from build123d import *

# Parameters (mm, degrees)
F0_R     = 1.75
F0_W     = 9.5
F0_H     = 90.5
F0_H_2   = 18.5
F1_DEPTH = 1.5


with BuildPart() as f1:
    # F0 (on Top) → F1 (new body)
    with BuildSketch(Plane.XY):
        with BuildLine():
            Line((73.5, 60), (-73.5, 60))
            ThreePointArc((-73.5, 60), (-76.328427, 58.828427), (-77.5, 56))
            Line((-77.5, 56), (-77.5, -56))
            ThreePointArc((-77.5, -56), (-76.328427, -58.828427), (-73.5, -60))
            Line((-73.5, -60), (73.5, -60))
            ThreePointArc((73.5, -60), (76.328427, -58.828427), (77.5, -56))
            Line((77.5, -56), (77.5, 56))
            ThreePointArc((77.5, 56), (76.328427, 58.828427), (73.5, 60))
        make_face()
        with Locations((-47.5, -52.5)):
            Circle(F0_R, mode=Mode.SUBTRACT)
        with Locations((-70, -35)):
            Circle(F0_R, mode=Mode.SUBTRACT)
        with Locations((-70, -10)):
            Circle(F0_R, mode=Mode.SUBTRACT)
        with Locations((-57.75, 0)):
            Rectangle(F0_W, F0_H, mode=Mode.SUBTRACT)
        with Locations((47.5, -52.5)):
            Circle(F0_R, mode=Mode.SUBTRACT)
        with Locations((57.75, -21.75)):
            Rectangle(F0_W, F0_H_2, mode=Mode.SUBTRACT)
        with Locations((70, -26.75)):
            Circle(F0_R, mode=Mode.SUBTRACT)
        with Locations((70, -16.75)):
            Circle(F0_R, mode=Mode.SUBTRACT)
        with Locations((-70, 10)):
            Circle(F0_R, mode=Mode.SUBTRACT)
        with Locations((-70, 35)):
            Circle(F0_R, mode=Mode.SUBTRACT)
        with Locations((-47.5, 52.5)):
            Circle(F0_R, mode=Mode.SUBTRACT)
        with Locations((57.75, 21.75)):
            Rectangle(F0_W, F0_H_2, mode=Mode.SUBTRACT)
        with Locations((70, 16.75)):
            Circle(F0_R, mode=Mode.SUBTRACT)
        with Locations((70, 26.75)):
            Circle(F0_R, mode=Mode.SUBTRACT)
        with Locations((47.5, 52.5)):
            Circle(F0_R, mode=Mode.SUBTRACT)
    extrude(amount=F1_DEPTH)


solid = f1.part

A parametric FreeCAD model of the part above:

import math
import FreeCAD as App
import Part
import Sketcher

V = App.Vector
Q = App.Units.Quantity

doc = App.newDocument("Part")
body = doc.addObject("PartDesign::Body", "Body")

sketch1 = doc.addObject("Sketcher::SketchObject", "Sketch")
body.addObject(sketch1)
sketch1.AttachmentSupport = (doc.XY_Plane, [""])
sketch1.MapMode = "FlatFace"
sketch1.addGeometry([
    Part.LineSegment(V(73.5, 60, 0), V(-73.5, 60, 0)),
    Part.ArcOfCircle(Part.Circle(V(-73.5, 56, 0), V(0, 0, 1), 4), math.radians(90), math.radians(180)),
    Part.LineSegment(V(-77.5, 56, 0), V(-77.5, -56, 0)),
    Part.ArcOfCircle(Part.Circle(V(-73.5, -56, 0), V(0, 0, 1), 4), math.radians(-180), math.radians(-90)),
    Part.LineSegment(V(-73.5, -60, 0), V(73.5, -60, 0)),
    Part.ArcOfCircle(Part.Circle(V(73.5, -56, 0), V(0, 0, 1), 4), math.radians(-90), math.radians(0)),
    Part.LineSegment(V(77.5, -56, 0), V(77.5, 56, 0)),
    Part.ArcOfCircle(Part.Circle(V(73.5, 56, 0), V(0, 0, 1), 4), math.radians(0), math.radians(90)),
    Part.Circle(V(-47.5, -52.5, 0), V(0, 0, 1), 1.8),
    Part.Circle(V(-70, -35, 0), V(0, 0, 1), 1.8),
    Part.Circle(V(-70, -10, 0), V(0, 0, 1), 1.8),
    Part.Circle(V(47.5, -52.5, 0), V(0, 0, 1), 1.8),
    Part.LineSegment(V(62.5, -31, 0), V(53, -31, 0)),
    Part.LineSegment(V(53, -31, 0), V(53, -12.5, 0)),
    Part.LineSegment(V(53, -12.5, 0), V(62.5, -12.5, 0)),
    Part.LineSegment(V(62.5, -12.5, 0), V(62.5, -31, 0)),
    Part.Circle(V(70, -26.8, 0), V(0, 0, 1), 1.8),
    Part.Circle(V(70, -16.8, 0), V(0, 0, 1), 1.8),
    Part.LineSegment(V(-53, -45.2, 0), V(-62.5, -45.2, 0)),
    Part.LineSegment(V(-62.5, -45.2, 0), V(-62.5, 45.2, 0)),
    Part.LineSegment(V(-62.5, 45.2, 0), V(-53, 45.2, 0)),
    Part.LineSegment(V(-53, 45.2, 0), V(-53, -45.2, 0)),
    Part.Circle(V(-70, 10, 0), V(0, 0, 1), 1.8),
    Part.Circle(V(-70, 35, 0), V(0, 0, 1), 1.8),
    Part.Circle(V(-47.5, 52.5, 0), V(0, 0, 1), 1.8),
    Part.Circle(V(70, 16.8, 0), V(0, 0, 1), 1.8),
    Part.LineSegment(V(62.5, 12.5, 0), V(53, 12.5, 0)),
    Part.LineSegment(V(53, 12.5, 0), V(53, 31, 0)),
    Part.LineSegment(V(53, 31, 0), V(62.5, 31, 0)),
    Part.LineSegment(V(62.5, 31, 0), V(62.5, 12.5, 0)),
    Part.Circle(V(70, 26.8, 0), V(0, 0, 1), 1.8),
    Part.Circle(V(47.5, 52.5, 0), V(0, 0, 1), 1.8),
], False)
sketch1.addConstraint([
    Sketcher.Constraint("Tangent", 0, 2, 1, 1),
    Sketcher.Constraint("Tangent", 1, 2, 2, 1),
    Sketcher.Constraint("Tangent", 2, 2, 3, 1),
    Sketcher.Constraint("Tangent", 3, 2, 4, 1),
    Sketcher.Constraint("Tangent", 4, 2, 5, 1),
    Sketcher.Constraint("Tangent", 5, 2, 6, 1),
    Sketcher.Constraint("Tangent", 6, 2, 7, 1),
    Sketcher.Constraint("Tangent", 7, 2, 0, 1),
    Sketcher.Constraint("Coincident", 12, 2, 13, 1),
    Sketcher.Constraint("Coincident", 13, 2, 14, 1),
    Sketcher.Constraint("Coincident", 14, 2, 15, 1),
    Sketcher.Constraint("Coincident", 15, 2, 12, 1),
    Sketcher.Constraint("Coincident", 18, 2, 19, 1),
    Sketcher.Constraint("Coincident", 19, 2, 20, 1),
    Sketcher.Constraint("Coincident", 20, 2, 21, 1),
    Sketcher.Constraint("Coincident", 21, 2, 18, 1),
    Sketcher.Constraint("Coincident", 26, 2, 27, 1),
    Sketcher.Constraint("Coincident", 27, 2, 28, 1),
    Sketcher.Constraint("Coincident", 28, 2, 29, 1),
    Sketcher.Constraint("Coincident", 29, 2, 26, 1),
    Sketcher.Constraint("Horizontal", 0),
    Sketcher.Constraint("Vertical", 2),
    Sketcher.Constraint("Horizontal", 4),
    Sketcher.Constraint("Vertical", 6),
    Sketcher.Constraint("Horizontal", 12),
    Sketcher.Constraint("Vertical", 13),
    Sketcher.Constraint("Horizontal", 14),
    Sketcher.Constraint("Vertical", 15),
    Sketcher.Constraint("Horizontal", 18),
    Sketcher.Constraint("Vertical", 19),
    Sketcher.Constraint("Horizontal", 20),
    Sketcher.Constraint("Vertical", 21),
    Sketcher.Constraint("Horizontal", 26),
    Sketcher.Constraint("Vertical", 27),
    Sketcher.Constraint("Horizontal", 28),
    Sketcher.Constraint("Vertical", 29),
    Sketcher.Constraint("Equal", 1, 3),
    Sketcher.Constraint("Equal", 3, 5),
    Sketcher.Constraint("Equal", 5, 7),
    Sketcher.Constraint("Equal", 8, 9),
    Sketcher.Constraint("Equal", 9, 10),
    Sketcher.Constraint("Equal", 10, 11),
    Sketcher.Constraint("Equal", 11, 16),
    Sketcher.Constraint("Equal", 16, 17),
    Sketcher.Constraint("Equal", 17, 22),
    Sketcher.Constraint("Equal", 22, 23),
    Sketcher.Constraint("Equal", 23, 24),
    Sketcher.Constraint("Equal", 24, 25),
    Sketcher.Constraint("Equal", 25, 30),
    Sketcher.Constraint("Equal", 30, 31),
    Sketcher.Constraint("Symmetric", 1, 3, 5, 3, -1, 1),
    Sketcher.Constraint("Symmetric", 11, 3, 24, 3, -1, 1),
    Sketcher.Constraint("Symmetric", 8, 3, 31, 3, -1, 1),
    Sketcher.Constraint("Symmetric", 8, 3, 11, 3, -2),
    Sketcher.Constraint("Symmetric", 10, 3, 22, 3, -1),
    Sketcher.Constraint("Symmetric", 9, 3, 23, 3, -1),
    Sketcher.Constraint("Symmetric", 17, 3, 25, 3, -1),
    Sketcher.Constraint("Symmetric", 16, 3, 30, 3, -1),
    Sketcher.Constraint("Symmetric", 13, 2, 26, 2, -1),
    Sketcher.Constraint("Symmetric", 15, 2, 28, 2, -1),
    Sketcher.Constraint("Vertical", 9, 3, 10, 3),
    Sketcher.Constraint("Vertical", 16, 3, 17, 3),
    Sketcher.Constraint("Equal", 14, 18),
    Sketcher.Constraint("Radius", 1, Q("4 mm")),
    Sketcher.Constraint("Diameter", 8, Q("3.5 mm")),
    Sketcher.Constraint("DistanceX", 0, 2, 0, 1, Q("147 mm")),
    Sketcher.Constraint("DistanceY", 2, 2, 2, 1, Q("112 mm")),
    Sketcher.Constraint("DistanceX", 12, 2, 12, 1, Q("9.5 mm")),
    Sketcher.Constraint("DistanceY", 13, 1, 13, 2, Q("18.5 mm")),
    Sketcher.Constraint("DistanceY", 19, 1, 19, 2, Q("90.5 mm")),
    Sketcher.Constraint("DistanceX", 9, 3, -1, 1, Q("70 mm")),
    Sketcher.Constraint("DistanceY", 9, 3, -1, 1, Q("35 mm")),
    Sketcher.Constraint("DistanceY", 10, 3, -1, 1, Q("10 mm")),
    Sketcher.Constraint("DistanceX", -1, 1, 16, 3, Q("70 mm")),
    Sketcher.Constraint("DistanceX", -1, 1, 12, 2, Q("53 mm")),
    Sketcher.Constraint("DistanceY", 12, 2, -1, 1, Q("31 mm")),
    Sketcher.Constraint("DistanceX", 20, 2, -1, 1, Q("53 mm")),
    Sketcher.Constraint("DistanceX", 3, 3, 8, 3, Q("26 mm")),
    Sketcher.Constraint("DistanceY", 16, 3, 17, 3, Q("10 mm")),
    Sketcher.Constraint("DistanceY", 11, 3, 13, 2, Q("40 mm")),
    Sketcher.Constraint("DistanceY", 17, 3, 25, 3, Q("33.5 mm")),
    Sketcher.Constraint("DistanceY", 18, 2, -1, 1, Q("45.25 mm")),
])
pad1 = doc.addObject("PartDesign::Pad", "Pad")
body.addObject(pad1)
pad1.Profile = sketch1
pad1.Length = 1.5

doc.recompute()
